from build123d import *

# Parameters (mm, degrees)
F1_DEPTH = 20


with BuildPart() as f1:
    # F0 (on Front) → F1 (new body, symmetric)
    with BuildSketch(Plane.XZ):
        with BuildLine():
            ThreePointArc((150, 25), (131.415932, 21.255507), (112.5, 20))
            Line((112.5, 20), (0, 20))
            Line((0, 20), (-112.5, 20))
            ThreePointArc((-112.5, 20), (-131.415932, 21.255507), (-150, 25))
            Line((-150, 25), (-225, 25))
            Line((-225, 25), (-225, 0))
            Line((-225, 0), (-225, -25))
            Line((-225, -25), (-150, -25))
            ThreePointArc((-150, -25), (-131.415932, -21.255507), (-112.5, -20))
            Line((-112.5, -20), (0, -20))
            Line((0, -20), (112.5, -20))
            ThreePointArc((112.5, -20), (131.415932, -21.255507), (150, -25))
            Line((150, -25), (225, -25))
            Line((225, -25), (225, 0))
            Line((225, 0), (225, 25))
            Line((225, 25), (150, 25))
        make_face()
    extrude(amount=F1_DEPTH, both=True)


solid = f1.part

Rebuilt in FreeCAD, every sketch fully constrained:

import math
import FreeCAD as App
import Part
import Sketcher

doc = App.newDocument("Part")
body = doc.addObject("PartDesign::Body", "Body")

# Sketch on XZ plane
sketch1 = body.newObject("Sketcher::SketchObject", "Sketch")
sketch1.AttachmentSupport = (doc.getObject("XZ_Plane"), [""])
sketch1.MapMode = "FlatFace"
sketch1.addGeometry([
    Part.ArcOfCircle(Part.Circle(App.Vector(112.499995, 163.125038, 0), App.Vector(0, 0, 1), 143.125038), math.radians(-89.999998), math.radians(-74.810715)),  # 0
    Part.LineSegment(App.Vector(112.5, 20, 0), App.Vector(-112.5, 20, 0)),  # 1
    Part.ArcOfCircle(Part.Circle(App.Vector(-112.499995, 163.125038, 0), App.Vector(0, 0, 1), 143.125038), math.radians(-105.189285), math.radians(-90.000002)),  # 2
    Part.LineSegment(App.Vector(-150, 25, 0), App.Vector(-225, 25, 0)),  # 3
    Part.LineSegment(App.Vector(-225, 25, 0), App.Vector(-225, -25, 0)),  # 4
    Part.LineSegment(App.Vector(-225, -25, 0), App.Vector(-150, -25, 0)),  # 5
    Part.ArcOfCircle(Part.Circle(App.Vector(-112.499995, -163.125038, 0), App.Vector(0, 0, 1), 143.125038), math.radians(90.000002), math.radians(105.189285)),  # 6
    Part.LineSegment(App.Vector(-112.5, -20, 0), App.Vector(112.5, -20, 0)),  # 7
    Part.ArcOfCircle(Part.Circle(App.Vector(112.499995, -163.125038, 0), App.Vector(0, 0, 1), 143.125038), math.radians(74.810715), math.radians(89.999998)),  # 8
    Part.LineSegment(App.Vector(150, -25, 0), App.Vector(225, -25, 0)),  # 9
    Part.LineSegment(App.Vector(225, -25, 0), App.Vector(225, 25, 0)),  # 10
    Part.LineSegment(App.Vector(225, 25, 0), App.Vector(150, 25, 0)),  # 11
], False)
sketch1.addConstraint([
    Sketcher.Constraint("Tangent", 0, 1, 1, 1),
    Sketcher.Constraint("Tangent", 1, 2, 2, 2),
    Sketcher.Constraint("Coincident", 2, 1, 3, 1),
    Sketcher.Constraint("Coincident", 3, 2, 4, 1),
    Sketcher.Constraint("Coincident", 4, 2, 5, 1),
    Sketcher.Constraint("Coincident", 5, 2, 6, 2),
    Sketcher.Constraint("Tangent", 6, 1, 7, 1),
    Sketcher.Constraint("Tangent", 7, 2, 8, 2),
    Sketcher.Constraint("Coincident", 8, 1, 9, 1),
    Sketcher.Constraint("Coincident", 9, 2, 10, 1),
    Sketcher.Constraint("Coincident", 10, 2, 11, 1),
    Sketcher.Constraint("Coincident", 11, 2, 0, 2),
    Sketcher.Constraint("Horizontal", 1),
    Sketcher.Constraint("Horizontal", 3),
    Sketcher.Constraint("Vertical", 4),
    Sketcher.Constraint("Horizontal", 5),
    Sketcher.Constraint("Horizontal", 7),
    Sketcher.Constraint("Horizontal", 9),
    Sketcher.Constraint("Vertical", 10),
    Sketcher.Constraint("Horizontal", 11),
    Sketcher.Constraint("Equal", 0, 2),
    Sketcher.Constraint("Equal", 2, 6),
    Sketcher.Constraint("Equal", 6, 8),
    Sketcher.Constraint("Symmetric", 0, 3, 6, 3, -1, 1),
    Sketcher.Constraint("Symmetric", 2, 1, 8, 1, -1, 1),
    Sketcher.Constraint("Symmetric", 4, 2, 10, 2, -1, 1),
    Sketcher.Constraint("Symmetric", 5, 2, 8, 1, -2),
    Sketcher.Constraint("DistanceX", 1, 2, 1, 1, 225.0),
    Sketcher.Constraint("DistanceX", 3, 2, 3, 1, 75.0),
    Sketcher.Constraint("DistanceY", 4, 2, 4, 1, 50.0),
    Sketcher.Constraint("DistanceY", -1, 1, 0, 1, 20.0),
    Sketcher.Constraint("DistanceX", 3, 2, -1, 1, 225.0),
])
pad1 = body.newObject("PartDesign::Pad", "Pad")
pad1.Profile = sketch1
pad1.Length = 40
pad1.Midplane = True

doc.recompute()
